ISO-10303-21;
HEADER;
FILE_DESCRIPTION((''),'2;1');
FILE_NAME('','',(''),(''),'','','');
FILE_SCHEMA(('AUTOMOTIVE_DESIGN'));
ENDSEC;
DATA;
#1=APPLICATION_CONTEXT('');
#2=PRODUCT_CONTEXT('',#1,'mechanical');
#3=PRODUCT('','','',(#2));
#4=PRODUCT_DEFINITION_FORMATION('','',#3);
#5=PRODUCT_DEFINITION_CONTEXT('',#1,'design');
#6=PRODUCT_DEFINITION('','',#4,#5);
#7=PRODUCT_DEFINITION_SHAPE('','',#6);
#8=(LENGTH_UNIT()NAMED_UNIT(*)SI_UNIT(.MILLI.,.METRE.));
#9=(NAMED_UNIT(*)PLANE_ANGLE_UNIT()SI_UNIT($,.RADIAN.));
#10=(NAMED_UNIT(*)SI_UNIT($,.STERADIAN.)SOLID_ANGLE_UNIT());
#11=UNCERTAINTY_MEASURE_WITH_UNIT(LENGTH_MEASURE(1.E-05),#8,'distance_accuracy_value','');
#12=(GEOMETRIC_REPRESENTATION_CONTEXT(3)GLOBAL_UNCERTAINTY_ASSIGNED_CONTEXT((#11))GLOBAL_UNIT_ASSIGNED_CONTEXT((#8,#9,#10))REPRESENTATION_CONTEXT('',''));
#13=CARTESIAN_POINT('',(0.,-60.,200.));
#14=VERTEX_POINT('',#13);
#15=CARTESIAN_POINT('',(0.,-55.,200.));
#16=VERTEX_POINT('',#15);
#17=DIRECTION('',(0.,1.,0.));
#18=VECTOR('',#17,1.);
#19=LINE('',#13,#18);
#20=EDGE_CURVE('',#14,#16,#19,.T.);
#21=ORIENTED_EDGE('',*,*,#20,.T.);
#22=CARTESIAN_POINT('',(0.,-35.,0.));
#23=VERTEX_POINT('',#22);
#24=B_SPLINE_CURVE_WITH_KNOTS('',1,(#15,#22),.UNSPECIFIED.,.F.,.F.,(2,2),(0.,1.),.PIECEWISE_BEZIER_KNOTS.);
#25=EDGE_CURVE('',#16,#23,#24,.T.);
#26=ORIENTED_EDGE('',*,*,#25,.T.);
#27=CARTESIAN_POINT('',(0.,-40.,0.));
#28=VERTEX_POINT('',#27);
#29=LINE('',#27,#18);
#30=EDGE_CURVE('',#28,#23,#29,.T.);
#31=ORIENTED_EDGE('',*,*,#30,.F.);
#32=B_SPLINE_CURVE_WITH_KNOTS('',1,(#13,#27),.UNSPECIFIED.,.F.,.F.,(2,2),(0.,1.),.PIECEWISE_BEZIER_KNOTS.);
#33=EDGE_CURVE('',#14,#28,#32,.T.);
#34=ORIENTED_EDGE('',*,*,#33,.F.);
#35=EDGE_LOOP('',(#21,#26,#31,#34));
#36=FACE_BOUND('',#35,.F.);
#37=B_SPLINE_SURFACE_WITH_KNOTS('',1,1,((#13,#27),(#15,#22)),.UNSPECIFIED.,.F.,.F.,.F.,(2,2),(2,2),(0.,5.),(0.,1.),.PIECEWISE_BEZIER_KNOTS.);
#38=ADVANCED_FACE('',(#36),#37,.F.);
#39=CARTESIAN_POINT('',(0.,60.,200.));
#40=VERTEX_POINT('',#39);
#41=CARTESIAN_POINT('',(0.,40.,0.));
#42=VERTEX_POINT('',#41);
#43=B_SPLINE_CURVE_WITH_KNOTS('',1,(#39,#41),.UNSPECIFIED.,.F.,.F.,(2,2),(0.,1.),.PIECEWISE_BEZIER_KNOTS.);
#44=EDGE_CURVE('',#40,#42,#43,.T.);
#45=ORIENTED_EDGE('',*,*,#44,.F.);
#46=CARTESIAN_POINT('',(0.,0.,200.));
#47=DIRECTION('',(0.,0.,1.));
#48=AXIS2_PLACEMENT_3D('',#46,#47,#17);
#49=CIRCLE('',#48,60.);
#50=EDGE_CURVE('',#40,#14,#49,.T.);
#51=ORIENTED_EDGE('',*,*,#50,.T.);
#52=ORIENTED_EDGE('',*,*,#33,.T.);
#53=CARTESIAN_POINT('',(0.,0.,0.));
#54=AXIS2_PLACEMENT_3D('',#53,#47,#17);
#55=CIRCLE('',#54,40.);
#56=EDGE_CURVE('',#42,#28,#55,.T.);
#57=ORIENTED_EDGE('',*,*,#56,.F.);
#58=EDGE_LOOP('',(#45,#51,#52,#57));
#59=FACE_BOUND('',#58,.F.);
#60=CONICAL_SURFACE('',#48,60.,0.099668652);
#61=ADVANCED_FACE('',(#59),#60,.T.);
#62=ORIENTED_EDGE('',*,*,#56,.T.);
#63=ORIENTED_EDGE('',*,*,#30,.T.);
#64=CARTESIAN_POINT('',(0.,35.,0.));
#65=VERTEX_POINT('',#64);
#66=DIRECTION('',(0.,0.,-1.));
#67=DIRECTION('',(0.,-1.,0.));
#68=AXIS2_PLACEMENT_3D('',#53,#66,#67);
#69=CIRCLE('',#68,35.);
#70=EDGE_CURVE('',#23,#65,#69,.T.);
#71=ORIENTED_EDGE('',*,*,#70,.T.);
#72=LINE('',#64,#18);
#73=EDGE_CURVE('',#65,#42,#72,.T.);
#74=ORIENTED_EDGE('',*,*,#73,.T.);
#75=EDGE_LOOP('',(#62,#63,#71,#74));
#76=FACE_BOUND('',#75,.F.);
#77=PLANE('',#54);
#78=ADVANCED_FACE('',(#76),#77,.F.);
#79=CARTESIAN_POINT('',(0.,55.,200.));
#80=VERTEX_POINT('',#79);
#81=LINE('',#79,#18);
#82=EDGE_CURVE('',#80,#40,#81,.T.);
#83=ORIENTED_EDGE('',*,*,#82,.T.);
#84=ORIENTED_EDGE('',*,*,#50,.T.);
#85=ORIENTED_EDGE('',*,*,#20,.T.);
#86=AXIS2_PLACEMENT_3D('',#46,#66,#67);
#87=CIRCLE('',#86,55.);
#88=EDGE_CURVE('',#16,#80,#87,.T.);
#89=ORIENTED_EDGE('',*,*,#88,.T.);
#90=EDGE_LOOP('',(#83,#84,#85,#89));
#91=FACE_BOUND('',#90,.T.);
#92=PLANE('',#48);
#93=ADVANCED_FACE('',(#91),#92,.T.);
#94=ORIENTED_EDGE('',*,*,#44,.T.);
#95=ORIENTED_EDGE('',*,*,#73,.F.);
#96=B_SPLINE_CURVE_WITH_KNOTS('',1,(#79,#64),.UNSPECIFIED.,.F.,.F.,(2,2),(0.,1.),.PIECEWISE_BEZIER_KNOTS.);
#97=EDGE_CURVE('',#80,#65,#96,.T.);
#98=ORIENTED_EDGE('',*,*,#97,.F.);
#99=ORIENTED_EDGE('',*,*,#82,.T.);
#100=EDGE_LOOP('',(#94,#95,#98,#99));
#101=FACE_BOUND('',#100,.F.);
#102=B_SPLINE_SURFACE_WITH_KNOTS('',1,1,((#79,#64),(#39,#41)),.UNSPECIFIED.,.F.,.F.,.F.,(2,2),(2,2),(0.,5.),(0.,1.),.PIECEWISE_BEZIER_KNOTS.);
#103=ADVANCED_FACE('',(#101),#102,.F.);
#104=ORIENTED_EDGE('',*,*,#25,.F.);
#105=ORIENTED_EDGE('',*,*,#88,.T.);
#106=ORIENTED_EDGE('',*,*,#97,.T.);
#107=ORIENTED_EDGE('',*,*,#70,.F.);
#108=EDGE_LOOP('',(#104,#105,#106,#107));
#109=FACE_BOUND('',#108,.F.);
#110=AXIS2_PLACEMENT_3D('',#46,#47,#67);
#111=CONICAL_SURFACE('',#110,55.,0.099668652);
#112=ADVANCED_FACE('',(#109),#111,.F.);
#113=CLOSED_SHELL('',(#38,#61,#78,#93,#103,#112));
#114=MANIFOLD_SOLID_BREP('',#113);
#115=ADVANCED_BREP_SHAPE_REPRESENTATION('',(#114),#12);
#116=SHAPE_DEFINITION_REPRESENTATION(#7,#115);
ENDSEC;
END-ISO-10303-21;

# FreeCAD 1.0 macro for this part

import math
import FreeCAD as App
import Part
import Sketcher

V = App.Vector

doc = App.newDocument("Part")
body = doc.addObject("PartDesign::Body", "Body")

# Sketch on XY plane
sketch1 = body.newObject("Sketcher::SketchObject", "Sketch")
sketch1.AttachmentSupport = (doc.getObject("XY_Plane"), [""])
sketch1.MapMode = "FlatFace"
sketch1.AttachmentOffset = App.Placement(V(0, 0, 200), App.Rotation())
sketch1.addGeometry([
    Part.LineSegment(V(0, 55, 0), V(0, 60, 0)),
    Part.ArcOfCircle(Part.Circle(V(0, 0, 0), V(0, 0, 1), 60), math.radians(90), math.radians(270)),
    Part.LineSegment(V(0, -60, 0), V(0, -55, 0)),
    Part.ArcOfCircle(Part.Circle(V(0, 0, 0), V(0, 0, 1), 55), math.radians(90), math.radians(270)),
], False)
sketch1.addConstraint([
    Sketcher.Constraint("Coincident", 0, 2, 1, 1),
    Sketcher.Constraint("Coincident", 1, 2, 2, 1),
    Sketcher.Constraint("Coincident", 2, 2, 3, 2),
    Sketcher.Constraint("Coincident", 3, 1, 0, 1),
    Sketcher.Constraint("Vertical", 0),
    Sketcher.Constraint("Vertical", 2),
    Sketcher.Constraint("Coincident", 1, 3, -1, 1),
    Sketcher.Constraint("Coincident", 3, 3, -1, 1),
    Sketcher.Constraint("PointOnObject", 0, 2, -2),
    Sketcher.Constraint("PointOnObject", 1, 2, -2),
    Sketcher.Constraint("Radius", 1, 60.0),
    Sketcher.Constraint("Radius", 3, 55.0),
])

# Sketch on XY plane
sketch2 = body.newObject("Sketcher::SketchObject", "Sketch001")
sketch2.AttachmentSupport = (doc.getObject("XY_Plane"), [""])
sketch2.MapMode = "FlatFace"
sketch2.addGeometry([
    Part.LineSegment(V(0, 35, 0), V(0, 40, 0)),
    Part.ArcOfCircle(Part.Circle(V(0, 0, 0), V(0, 0, 1), 40), math.radians(90), math.radians(270)),
    Part.LineSegment(V(0, -40, 0), V(0, -35, 0)),
    Part.ArcOfCircle(Part.Circle(V(0, 0, 0), V(0, 0, 1), 35), math.radians(90), math.radians(270)),
], False)
sketch2.addConstraint([
    Sketcher.Constraint("Coincident", 0, 2, 1, 1),
    Sketcher.Constraint("Coincident", 1, 2, 2, 1),
    Sketcher.Constraint("Coincident", 2, 2, 3, 2),
    Sketcher.Constraint("Coincident", 3, 1, 0, 1),
    Sketcher.Constraint("Vertical", 0),
    Sketcher.Constraint("Vertical", 2),
    Sketcher.Constraint("Coincident", 1, 3, -1, 1),
    Sketcher.Constraint("Coincident", 3, 3, -1, 1),
    Sketcher.Constraint("PointOnObject", 0, 2, -2),
    Sketcher.Constraint("PointOnObject", 1, 2, -2),
    Sketcher.Constraint("Radius", 1, 40.0),
    Sketcher.Constraint("Radius", 3, 35.0),
])

additiveloft = body.newObject("PartDesign::AdditiveLoft", "AdditiveLoft")
additiveloft.Profile = sketch1
additiveloft.Sections = [sketch2]

doc.recompute()
